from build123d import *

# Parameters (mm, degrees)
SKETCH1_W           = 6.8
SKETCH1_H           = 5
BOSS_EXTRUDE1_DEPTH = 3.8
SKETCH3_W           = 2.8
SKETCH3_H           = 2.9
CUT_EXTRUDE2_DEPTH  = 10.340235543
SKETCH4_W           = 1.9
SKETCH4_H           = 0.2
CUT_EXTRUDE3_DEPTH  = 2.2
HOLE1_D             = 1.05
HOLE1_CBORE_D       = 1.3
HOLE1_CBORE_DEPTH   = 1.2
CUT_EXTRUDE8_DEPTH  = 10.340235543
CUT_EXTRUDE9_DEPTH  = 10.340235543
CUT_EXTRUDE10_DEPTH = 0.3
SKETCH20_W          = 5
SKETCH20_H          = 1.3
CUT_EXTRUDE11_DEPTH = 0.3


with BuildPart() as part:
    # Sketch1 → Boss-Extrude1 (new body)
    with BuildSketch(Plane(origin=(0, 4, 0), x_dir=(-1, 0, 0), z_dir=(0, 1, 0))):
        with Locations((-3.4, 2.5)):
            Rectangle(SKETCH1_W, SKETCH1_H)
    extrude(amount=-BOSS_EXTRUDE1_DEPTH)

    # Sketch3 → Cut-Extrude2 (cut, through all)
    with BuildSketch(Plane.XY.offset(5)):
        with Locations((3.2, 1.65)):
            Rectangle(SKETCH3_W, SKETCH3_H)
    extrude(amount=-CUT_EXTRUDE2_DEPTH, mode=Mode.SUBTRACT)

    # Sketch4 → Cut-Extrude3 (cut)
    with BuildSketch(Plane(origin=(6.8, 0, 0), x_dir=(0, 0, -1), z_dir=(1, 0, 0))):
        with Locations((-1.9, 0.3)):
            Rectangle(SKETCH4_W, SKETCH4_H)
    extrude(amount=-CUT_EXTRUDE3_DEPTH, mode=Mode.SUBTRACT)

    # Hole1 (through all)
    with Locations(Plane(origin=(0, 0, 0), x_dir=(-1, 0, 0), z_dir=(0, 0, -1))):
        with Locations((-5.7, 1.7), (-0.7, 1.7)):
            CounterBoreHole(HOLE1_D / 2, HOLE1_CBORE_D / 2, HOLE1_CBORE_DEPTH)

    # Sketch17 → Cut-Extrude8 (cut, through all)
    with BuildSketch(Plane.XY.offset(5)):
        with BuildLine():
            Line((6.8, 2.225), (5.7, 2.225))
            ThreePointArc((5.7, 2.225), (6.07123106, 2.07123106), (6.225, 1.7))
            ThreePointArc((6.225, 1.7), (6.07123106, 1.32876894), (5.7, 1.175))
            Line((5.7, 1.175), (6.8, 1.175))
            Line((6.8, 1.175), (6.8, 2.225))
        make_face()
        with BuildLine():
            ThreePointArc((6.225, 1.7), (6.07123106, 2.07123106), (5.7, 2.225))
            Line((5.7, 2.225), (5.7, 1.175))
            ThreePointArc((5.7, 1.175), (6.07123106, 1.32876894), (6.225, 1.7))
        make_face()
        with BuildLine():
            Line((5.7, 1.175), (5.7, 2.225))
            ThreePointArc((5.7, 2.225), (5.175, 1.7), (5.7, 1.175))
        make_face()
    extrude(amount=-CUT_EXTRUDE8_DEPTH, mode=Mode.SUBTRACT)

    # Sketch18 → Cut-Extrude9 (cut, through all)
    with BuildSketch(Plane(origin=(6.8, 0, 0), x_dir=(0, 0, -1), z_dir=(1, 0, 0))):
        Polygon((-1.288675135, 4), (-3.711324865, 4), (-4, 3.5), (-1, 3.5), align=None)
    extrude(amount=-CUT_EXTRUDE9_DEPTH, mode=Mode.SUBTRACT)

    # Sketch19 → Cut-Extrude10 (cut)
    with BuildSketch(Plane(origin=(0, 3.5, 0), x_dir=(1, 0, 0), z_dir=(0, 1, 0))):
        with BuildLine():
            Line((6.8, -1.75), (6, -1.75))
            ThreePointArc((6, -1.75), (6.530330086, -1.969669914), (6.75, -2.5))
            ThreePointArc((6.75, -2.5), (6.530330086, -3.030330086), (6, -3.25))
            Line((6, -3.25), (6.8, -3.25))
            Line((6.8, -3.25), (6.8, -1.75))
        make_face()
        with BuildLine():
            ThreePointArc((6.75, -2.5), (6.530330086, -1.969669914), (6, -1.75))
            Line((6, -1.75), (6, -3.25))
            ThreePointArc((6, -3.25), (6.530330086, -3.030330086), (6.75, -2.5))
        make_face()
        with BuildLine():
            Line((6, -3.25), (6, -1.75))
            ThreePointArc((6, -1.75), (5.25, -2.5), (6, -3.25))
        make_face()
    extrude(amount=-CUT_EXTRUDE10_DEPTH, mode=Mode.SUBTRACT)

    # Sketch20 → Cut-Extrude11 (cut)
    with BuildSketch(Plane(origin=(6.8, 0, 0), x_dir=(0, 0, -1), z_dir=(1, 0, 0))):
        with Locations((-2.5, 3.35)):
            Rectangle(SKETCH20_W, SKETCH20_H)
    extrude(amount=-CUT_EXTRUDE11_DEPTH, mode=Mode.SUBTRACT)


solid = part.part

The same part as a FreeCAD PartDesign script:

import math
import FreeCAD as App
import Part
import Sketcher
Q = App.Units.Quantity

doc = App.newDocument("Part")
body = doc.addObject("PartDesign::Body", "Body")

sketch1 = body.newObject("Sketcher::SketchObject", "Sketch")
sketch1.AttachmentSupport = (doc.getObject("XZ_Plane"), [""])
sketch1.MapMode = "FlatFace"
sketch1.AttachmentOffset = App.Placement(App.Vector(0, 0, -4), App.Rotation())
sketch1.addGeometry([
    Part.LineSegment(App.Vector(6.8, 5, 0), App.Vector(6.8, 0, 0)),
    Part.LineSegment(App.Vector(6.8, 0, 0), App.Vector(0, 0, 0)),
    Part.LineSegment(App.Vector(0, 0, 0), App.Vector(0, 5, 0)),
    Part.LineSegment(App.Vector(0, 5, 0), App.Vector(6.8, 5, 0)),
], False)
sketch1.addConstraint([
    Sketcher.Constraint("Coincident", 0, 2, 1, 1),
    Sketcher.Constraint("Coincident", 1, 2, 2, 1),
    Sketcher.Constraint("Coincident", 2, 2, 3, 1),
    Sketcher.Constraint("Coincident", 3, 2, 0, 1),
    Sketcher.Constraint("Vertical", 0),
    Sketcher.Constraint("Horizontal", 1),
    Sketcher.Constraint("Vertical", 2),
    Sketcher.Constraint("Horizontal", 3),
    Sketcher.Constraint("Coincident", 1, 2, -1, 1),
    Sketcher.Constraint("DistanceY", 0, 2, 0, 1, 5.0),
    Sketcher.Constraint("DistanceX", 1, 2, 1, 1, 6.8),
])
pad1 = body.newObject("PartDesign::Pad", "Pad")
pad1.Profile = sketch1
pad1.Length = 3.8

sketch2 = body.newObject("Sketcher::SketchObject", "Sketch001")
sketch2.AttachmentSupport = (doc.getObject("XY_Plane"), [""])
sketch2.MapMode = "FlatFace"
sketch2.AttachmentOffset = App.Placement(App.Vector(0, 0, 5), App.Rotation())
sketch2.addGeometry([
    Part.LineSegment(App.Vector(1.8, 3.1, 0), App.Vector(1.8, 0.2, 0)),
    Part.LineSegment(App.Vector(1.8, 0.2, 0), App.Vector(4.6, 0.2, 0)),
    Part.LineSegment(App.Vector(4.6, 0.2, 0), App.Vector(4.6, 3.1, 0)),
    Part.LineSegment(App.Vector(4.6, 3.1, 0), App.Vector(1.8, 3.1, 0)),
], False)
sketch2.addConstraint([
    Sketcher.Constraint("Coincident", 0, 2, 1, 1),
    Sketcher.Constraint("Coincident", 1, 2, 2, 1),
    Sketcher.Constraint("Coincident", 2, 2, 3, 1),
    Sketcher.Constraint("Coincident", 3, 2, 0, 1),
    Sketcher.Constraint("Vertical", 0),
    Sketcher.Constraint("Horizontal", 1),
    Sketcher.Constraint("Vertical", 2),
    Sketcher.Constraint("Horizontal", 3),
    Sketcher.Constraint("DistanceX", 1, 1, 1, 2, 2.8),
    Sketcher.Constraint("DistanceY", 0, 2, 0, 1, 2.9),
    Sketcher.Constraint("DistanceX", -1, 1, 0, 2, 1.8),
    Sketcher.Constraint("DistanceY", -1, 1, 0, 2, 0.2),
])
pocket1 = body.newObject("PartDesign::Pocket", "Pocket")
pocket1.Profile = sketch2
pocket1.Type = "ThroughAll"

sketch3 = body.newObject("Sketcher::SketchObject", "Sketch002")
sketch3.AttachmentSupport = (doc.getObject("YZ_Plane"), [""])
sketch3.MapMode = "FlatFace"
sketch3.AttachmentOffset = App.Placement(App.Vector(0, 0, 6.8), App.Rotation())
sketch3.addGeometry([
    Part.LineSegment(App.Vector(0.4, 2.85, 0), App.Vector(0.2, 2.85, 0)),
    Part.LineSegment(App.Vector(0.2, 2.85, 0), App.Vector(0.2, 0.95, 0)),
    Part.LineSegment(App.Vector(0.2, 0.95, 0), App.Vector(0.4, 0.95, 0)),
    Part.LineSegment(App.Vector(0.4, 0.95, 0), App.Vector(0.4, 2.85, 0)),
], False)
sketch3.addConstraint([
    Sketcher.Constraint("Coincident", 0, 2, 1, 1),
    Sketcher.Constraint("Coincident", 1, 2, 2, 1),
    Sketcher.Constraint("Coincident", 2, 2, 3, 1),
    Sketcher.Constraint("Coincident", 3, 2, 0, 1),
    Sketcher.Constraint("Horizontal", 0),
    Sketcher.Constraint("Vertical", 1),
    Sketcher.Constraint("Horizontal", 2),
    Sketcher.Constraint("Vertical", 3),
    Sketcher.Constraint("DistanceX", 0, 2, 0, 1, 0.2),
    Sketcher.Constraint("DistanceY", 1, 2, 1, 1, 1.9),
    Sketcher.Constraint("DistanceX", -1, 1, 0, 2, 0.2),
    Sketcher.Constraint("DistanceY", -1, 1, 0, 2, 2.85),
])
pocket2 = body.newObject("PartDesign::Pocket", "Pocket001")
pocket2.Profile = sketch3
pocket2.Length = 2.2

sketch4 = body.newObject("Sketcher::SketchObject", "Sketch003")
sketch4.AttachmentSupport = (doc.getObject("XY_Plane"), [""])
sketch4.MapMode = "FlatFace"
sketch4.addGeometry([
    Part.Circle(App.Vector(5.7, 1.7, 0), App.Vector(0, 0, 1), 0.525),
    Part.Circle(App.Vector(0.7, 1.7, 0), App.Vector(0, 0, 1), 0.525),
], False)
sketch4.addConstraint([
    Sketcher.Constraint("Equal", 0, 1),
    Sketcher.Constraint("Horizontal", 0, 3, 1, 3),
    Sketcher.Constraint("Diameter", 0, 1.05),
    Sketcher.Constraint("DistanceX", 1, 3, 0, 3, 5.0),
    Sketcher.Constraint("DistanceX", -1, 1, 0, 3, 5.7),
    Sketcher.Constraint("DistanceY", -1, 1, 0, 3, 1.7),
])
doc.recompute()
hole = body.newObject("PartDesign::Hole", "Hole")
hole.Profile = sketch4
hole.ThreadType = "None"
hole.Diameter = 1.05
hole.DepthType = "ThroughAll"
hole.HoleCutType = "Counterbore"
hole.HoleCutDiameter = 1.3
hole.HoleCutDepth = 1.2
hole.Reversed = True

sketch5 = body.newObject("Sketcher::SketchObject", "Sketch004")
sketch5.AttachmentSupport = (doc.getObject("XY_Plane"), [""])
sketch5.MapMode = "FlatFace"
sketch5.AttachmentOffset = App.Placement(App.Vector(0, 0, 5), App.Rotation())
sketch5.addGeometry([
    Part.LineSegment(App.Vector(5.7, 1.175, 0), App.Vector(6.8, 1.175, 0)),
    Part.LineSegment(App.Vector(6.8, 1.175, 0), App.Vector(6.8, 2.225, 0)),
    Part.LineSegment(App.Vector(6.8, 2.225, 0), App.Vector(5.7, 2.225, 0)),
    Part.ArcOfCircle(Part.Circle(App.Vector(5.7, 1.7, 0), App.Vector(0, 0, 1), 0.525), math.radians(90), math.radians(270)),
], False)
sketch5.addConstraint([
    Sketcher.Constraint("Coincident", 0, 2, 1, 1),
    Sketcher.Constraint("Coincident", 1, 2, 2, 1),
    Sketcher.Constraint("Tangent", 2, 2, 3, 1),
    Sketcher.Constraint("Tangent", 3, 2, 0, 1),
    Sketcher.Constraint("Horizontal", 0),
    Sketcher.Constraint("Vertical", 1),
    Sketcher.Constraint("Horizontal", 2),
    Sketcher.Constraint("DistanceX", 0, 1, 0, 2, 1.1),
    Sketcher.Constraint("Radius", 3, 0.525),
    Sketcher.Constraint("DistanceX", -1, 1, 3, 3, 5.7),
    Sketcher.Constraint("DistanceY", -1, 1, 3, 3, 1.7),
])
pocket3 = body.newObject("PartDesign::Pocket", "Pocket002")
pocket3.Profile = sketch5
pocket3.Type = "ThroughAll"

sketch6 = body.newObject("Sketcher::SketchObject", "Sketch005")
sketch6.AttachmentSupport = (doc.getObject("YZ_Plane"), [""])
sketch6.MapMode = "FlatFace"
sketch6.AttachmentOffset = App.Placement(App.Vector(0, 0, 6.8), App.Rotation())
sketch6.addGeometry([
    Part.LineSegment(App.Vector(4, 1.288675, 0), App.Vector(4, 3.711325, 0)),
    Part.LineSegment(App.Vector(4, 3.711325, 0), App.Vector(3.5, 4, 0)),
    Part.LineSegment(App.Vector(3.5, 4, 0), App.Vector(3.5, 1, 0)),
    Part.LineSegment(App.Vector(3.5, 1, 0), App.Vector(4, 1.288675, 0)),
], False)
sketch6.addConstraint([
    Sketcher.Constraint("Coincident", 0, 2, 1, 1),
    Sketcher.Constraint("Coincident", 1, 2, 2, 1),
    Sketcher.Constraint("Coincident", 2, 2, 3, 1),
    Sketcher.Constraint("Coincident", 3, 2, 0, 1),
    Sketcher.Constraint("Vertical", 0),
    Sketcher.Constraint("Vertical", 2),
    Sketcher.Constraint("Equal", 1, 3),
    Sketcher.Constraint("DistanceY", 2, 2, 2, 1, 3.0),
    Sketcher.Constraint("Angle", 1, Q("150 deg")),
    Sketcher.Constraint("DistanceX", -1, 1, 0, 2, 4.0),
    Sketcher.Constraint("DistanceY", -1, 1, 1, 2, 4.0),
    Sketcher.Constraint("DistanceX", -1, 1, 1, 2, 3.5),
])
pocket4 = body.newObject("PartDesign::Pocket", "Pocket003")
pocket4.Profile = sketch6
pocket4.Type = "ThroughAll"

sketch7 = body.newObject("Sketcher::SketchObject", "Sketch006")
sketch7.AttachmentSupport = (doc.getObject("XZ_Plane"), [""])
sketch7.MapMode = "FlatFace"
sketch7.AttachmentOffset = App.Placement(App.Vector(0, 0, -3.5), App.Rotation())
sketch7.addGeometry([
    Part.LineSegment(App.Vector(6.8, 1.75, 0), App.Vector(6, 1.75, 0)),
    Part.ArcOfCircle(Part.Circle(App.Vector(6, 2.5, 0), App.Vector(0, 0, 1), 0.75), math.radians(90), math.radians(270)),
    Part.LineSegment(App.Vector(6, 3.25, 0), App.Vector(6.8, 3.25, 0)),
    Part.LineSegment(App.Vector(6.8, 3.25, 0), App.Vector(6.8, 1.75, 0)),
], False)
sketch7.addConstraint([
    Sketcher.Constraint("Tangent", 0, 2, 1, 2),
    Sketcher.Constraint("Tangent", 1, 1, 2, 1),
    Sketcher.Constraint("Coincident", 2, 2, 3, 1),
    Sketcher.Constraint("Coincident", 3, 2, 0, 1),
    Sketcher.Constraint("Horizontal", 0),
    Sketcher.Constraint("Horizontal", 2),
    Sketcher.Constraint("Vertical", 3),
    Sketcher.Constraint("Radius", 1, 0.75),
    Sketcher.Constraint("DistanceX", 0, 2, 0, 1, 0.8),
    Sketcher.Constraint("DistanceX", -1, 1, 1, 3, 6.0),
    Sketcher.Constraint("DistanceY", -1, 1, 1, 3, 2.5),
])
pocket5 = body.newObject("PartDesign::Pocket", "Pocket004")
pocket5.Profile = sketch7
pocket5.Length = 0.3
pocket5.Reversed = True

sketch8 = body.newObject("Sketcher::SketchObject", "Sketch007")
sketch8.AttachmentSupport = (doc.getObject("YZ_Plane"), [""])
sketch8.MapMode = "FlatFace"
sketch8.AttachmentOffset = App.Placement(App.Vector(0, 0, 6.8), App.Rotation())
sketch8.addGeometry([
    Part.LineSegment(App.Vector(4, 5, 0), App.Vector(2.7, 5, 0)),
    Part.LineSegment(App.Vector(2.7, 5, 0), App.Vector(2.7, 0, 0)),
    Part.LineSegment(App.Vector(2.7, 0, 0), App.Vector(4, 0, 0)),
    Part.LineSegment(App.Vector(4, 0, 0), App.Vector(4, 5, 0)),
], False)
sketch8.addConstraint([
    Sketcher.Constraint("Coincident", 0, 2, 1, 1),
    Sketcher.Constraint("Coincident", 1, 2, 2, 1),
    Sketcher.Constraint("Coincident", 2, 2, 3, 1),
    Sketcher.Constraint("Coincident", 3, 2, 0, 1),
    Sketcher.Constraint("Horizontal", 0),
    Sketcher.Constraint("Vertical", 1),
    Sketcher.Constraint("Horizontal", 2),
    Sketcher.Constraint("Vertical", 3),
    Sketcher.Constraint("PointOnObject", 1, 2, -1),
    Sketcher.Constraint("DistanceY", 1, 2, 1, 1, 5.0),
    Sketcher.Constraint("DistanceX", 0, 2, 0, 1, 1.3),
    Sketcher.Constraint("DistanceX", -1, 1, 2, 2, 4.0),
])
pocket6 = body.newObject("PartDesign::Pocket", "Pocket005")
pocket6.Profile = sketch8
pocket6.Length = 0.3

doc.recompute()
